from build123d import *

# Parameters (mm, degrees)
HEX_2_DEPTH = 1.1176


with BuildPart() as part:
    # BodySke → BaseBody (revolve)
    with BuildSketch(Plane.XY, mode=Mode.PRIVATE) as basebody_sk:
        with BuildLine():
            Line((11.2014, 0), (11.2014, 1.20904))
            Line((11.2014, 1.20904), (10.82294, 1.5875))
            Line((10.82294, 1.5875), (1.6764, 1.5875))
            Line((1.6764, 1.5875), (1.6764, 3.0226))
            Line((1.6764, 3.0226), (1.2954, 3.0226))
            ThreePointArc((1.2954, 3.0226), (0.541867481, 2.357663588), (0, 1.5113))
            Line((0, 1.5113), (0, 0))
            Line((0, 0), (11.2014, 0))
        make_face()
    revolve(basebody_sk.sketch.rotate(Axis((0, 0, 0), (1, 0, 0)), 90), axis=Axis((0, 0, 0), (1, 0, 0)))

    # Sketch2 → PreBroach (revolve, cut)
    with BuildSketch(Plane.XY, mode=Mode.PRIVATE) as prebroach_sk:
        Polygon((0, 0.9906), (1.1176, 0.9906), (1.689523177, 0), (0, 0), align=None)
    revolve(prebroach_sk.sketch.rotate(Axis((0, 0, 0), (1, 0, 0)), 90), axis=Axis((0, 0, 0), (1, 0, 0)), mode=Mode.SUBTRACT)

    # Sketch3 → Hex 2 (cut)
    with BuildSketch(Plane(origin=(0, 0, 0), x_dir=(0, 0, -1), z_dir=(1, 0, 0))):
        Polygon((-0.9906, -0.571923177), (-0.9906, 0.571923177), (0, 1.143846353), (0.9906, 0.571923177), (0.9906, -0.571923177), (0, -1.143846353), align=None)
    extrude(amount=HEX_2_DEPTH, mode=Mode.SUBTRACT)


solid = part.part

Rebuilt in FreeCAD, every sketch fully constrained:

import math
import FreeCAD as App
import Part
import Sketcher
Q = App.Units.Quantity

doc = App.newDocument("Part")
body = doc.addObject("PartDesign::Body", "Body")

sketch1 = body.newObject("Sketcher::SketchObject", "Sketch")
sketch1.AttachmentSupport = (doc.getObject("XY_Plane"), [""])
sketch1.MapMode = "FlatFace"
sketch1.addGeometry([
    Part.LineSegment(App.Vector(11.2014, 0, 0), App.Vector(11.2014, 1.20904, 0)),
    Part.LineSegment(App.Vector(11.2014, 1.20904, 0), App.Vector(10.82294, 1.5875, 0)),
    Part.LineSegment(App.Vector(10.82294, 1.5875, 0), App.Vector(1.6764, 1.5875, 0)),
    Part.LineSegment(App.Vector(1.6764, 1.5875, 0), App.Vector(1.6764, 3.0226, 0)),
    Part.LineSegment(App.Vector(1.6764, 3.0226, 0), App.Vector(1.2954, 3.0226, 0)),
    Part.ArcOfCircle(Part.Circle(App.Vector(3.292475, 0, 0), App.Vector(0, 0, 1), 3.622764), math.radians(123.453309), math.radians(155.344101)),
    Part.LineSegment(App.Vector(0, 1.5113, 0), App.Vector(0, 0, 0)),
    Part.LineSegment(App.Vector(0, 0, 0), App.Vector(11.2014, 0, 0)),
], False)
sketch1.addConstraint([
    Sketcher.Constraint("Coincident", 0, 2, 1, 1),
    Sketcher.Constraint("Coincident", 1, 2, 2, 1),
    Sketcher.Constraint("Coincident", 2, 2, 3, 1),
    Sketcher.Constraint("Coincident", 3, 2, 4, 1),
    Sketcher.Constraint("Coincident", 4, 2, 5, 1),
    Sketcher.Constraint("Coincident", 5, 2, 6, 1),
    Sketcher.Constraint("Coincident", 6, 2, 7, 1),
    Sketcher.Constraint("Coincident", 7, 2, 0, 1),
    Sketcher.Constraint("Vertical", 0),
    Sketcher.Constraint("Horizontal", 2),
    Sketcher.Constraint("Vertical", 3),
    Sketcher.Constraint("Horizontal", 4),
    Sketcher.Constraint("Vertical", 6),
    Sketcher.Constraint("Horizontal", 7),
    Sketcher.Constraint("Coincident", 6, 2, -1, 1),
    Sketcher.Constraint("PointOnObject", 5, 3, -1),
    Sketcher.Constraint("Angle", 1, Q("135 deg")),
    Sketcher.Constraint("DistanceX", 4, 2, 4, 1, Q("0.015 in")),
    Sketcher.Constraint("DistanceX", 7, 1, 7, 2, Q("0.441 in")),
    Sketcher.Constraint("DistanceX", 4, 2, 0, 2, Q("0.39 in")),
    Sketcher.Constraint("DistanceX", 2, 2, 2, 1, Q("0.3601 in")),
    Sketcher.Constraint("DistanceY", 0, 1, 0, 2, Q("0.0476 in")),
    Sketcher.Constraint("DistanceY", 3, 1, 3, 2, Q("0.0565 in")),
    Sketcher.Constraint("DistanceY", 6, 2, 6, 1, Q("0.0595 in")),
])
revolution = body.newObject("PartDesign::Revolution", "Revolution")
revolution.Profile = sketch1
revolution.ReferenceAxis = (sketch1, ["H_Axis"])
revolution.Angle = 360

sketch2 = body.newObject("Sketcher::SketchObject", "Sketch001")
sketch2.AttachmentSupport = (doc.getObject("XY_Plane"), [""])
sketch2.MapMode = "FlatFace"
sketch2.addGeometry([
    Part.LineSegment(App.Vector(1.1176, 0.9906, 0), App.Vector(0, 0.9906, 0)),
    Part.LineSegment(App.Vector(0, 0.9906, 0), App.Vector(0, 0, 0)),
    Part.LineSegment(App.Vector(0, 0, 0), App.Vector(1.689523, 0, 0)),
    Part.LineSegment(App.Vector(1.689523, 0, 0), App.Vector(1.1176, 0.9906, 0)),
], False)
sketch2.addConstraint([
    Sketcher.Constraint("Coincident", 0, 2, 1, 1),
    Sketcher.Constraint("Coincident", 1, 2, 2, 1),
    Sketcher.Constraint("Coincident", 2, 2, 3, 1),
    Sketcher.Constraint("Coincident", 3, 2, 0, 1),
    Sketcher.Constraint("Horizontal", 0),
    Sketcher.Constraint("Vertical", 1),
    Sketcher.Constraint("Horizontal", 2),
    Sketcher.Constraint("Coincident", 1, 2, -1, 1),
    Sketcher.Constraint("Angle", 3, Q("120 deg")),
    Sketcher.Constraint("DistanceX", 0, 2, 0, 1, Q("0.044 in")),
    Sketcher.Constraint("DistanceY", 1, 2, 1, 1, Q("0.039 in")),
])
groove = body.newObject("PartDesign::Groove", "Groove")
groove.Profile = sketch2
groove.ReferenceAxis = (sketch2, ["H_Axis"])
groove.Angle = 360

sketch3 = body.newObject("Sketcher::SketchObject", "Sketch002")
sketch3.AttachmentSupport = (doc.getObject("YZ_Plane"), [""])
sketch3.MapMode = "FlatFace"
sketch3.addGeometry([
    Part.LineSegment(App.Vector(0.571923, 0.9906, 0), App.Vector(-0.571923, 0.9906, 0)),
    Part.LineSegment(App.Vector(-0.571923, 0.9906, 0), App.Vector(-1.143846, 0, 0)),
    Part.LineSegment(App.Vector(-1.143846, 0, 0), App.Vector(-0.571923, -0.9906, 0)),
    Part.LineSegment(App.Vector(-0.571923, -0.9906, 0), App.Vector(0.571923, -0.9906, 0)),
    Part.LineSegment(App.Vector(0.571923, -0.9906, 0), App.Vector(1.143846, 0, 0)),
    Part.LineSegment(App.Vector(1.143846, 0, 0), App.Vector(0.571923, 0.9906, 0)),
], False)
sketch3.addConstraint([
    Sketcher.Constraint("Coincident", 0, 2, 1, 1),
    Sketcher.Constraint("Coincident", 1, 2, 2, 1),
    Sketcher.Constraint("Coincident", 2, 2, 3, 1),
    Sketcher.Constraint("Coincident", 3, 2, 4, 1),
    Sketcher.Constraint("Coincident", 4, 2, 5, 1),
    Sketcher.Constraint("Coincident", 5, 2, 0, 1),
    Sketcher.Constraint("Horizontal", 0),
    Sketcher.Constraint("Horizontal", 3),
    Sketcher.Constraint("Symmetric", 0, 2, 3, 2, -1, 1),
    Sketcher.Constraint("Symmetric", 1, 2, 4, 2, -1, 1),
    Sketcher.Constraint("PointOnObject", 1, 2, -1),
    Sketcher.Constraint("Parallel", 2, 5),
    Sketcher.Constraint("Vertical", 0, 2, 2, 2),
    Sketcher.Constraint("Angle", 1, Q("-120 deg")),
    Sketcher.Constraint("DistanceY", -1, 1, 0, 2, Q("0.039 in")),
    Sketcher.Constraint("DistanceX", 0, 2, 0, 1, Q("1.143846 mm")),
])
pocket1 = body.newObject("PartDesign::Pocket", "Pocket")
pocket1.Profile = sketch3
pocket1.Length = Q("0.044 in")
pocket1.Reversed = True

doc.recompute()
